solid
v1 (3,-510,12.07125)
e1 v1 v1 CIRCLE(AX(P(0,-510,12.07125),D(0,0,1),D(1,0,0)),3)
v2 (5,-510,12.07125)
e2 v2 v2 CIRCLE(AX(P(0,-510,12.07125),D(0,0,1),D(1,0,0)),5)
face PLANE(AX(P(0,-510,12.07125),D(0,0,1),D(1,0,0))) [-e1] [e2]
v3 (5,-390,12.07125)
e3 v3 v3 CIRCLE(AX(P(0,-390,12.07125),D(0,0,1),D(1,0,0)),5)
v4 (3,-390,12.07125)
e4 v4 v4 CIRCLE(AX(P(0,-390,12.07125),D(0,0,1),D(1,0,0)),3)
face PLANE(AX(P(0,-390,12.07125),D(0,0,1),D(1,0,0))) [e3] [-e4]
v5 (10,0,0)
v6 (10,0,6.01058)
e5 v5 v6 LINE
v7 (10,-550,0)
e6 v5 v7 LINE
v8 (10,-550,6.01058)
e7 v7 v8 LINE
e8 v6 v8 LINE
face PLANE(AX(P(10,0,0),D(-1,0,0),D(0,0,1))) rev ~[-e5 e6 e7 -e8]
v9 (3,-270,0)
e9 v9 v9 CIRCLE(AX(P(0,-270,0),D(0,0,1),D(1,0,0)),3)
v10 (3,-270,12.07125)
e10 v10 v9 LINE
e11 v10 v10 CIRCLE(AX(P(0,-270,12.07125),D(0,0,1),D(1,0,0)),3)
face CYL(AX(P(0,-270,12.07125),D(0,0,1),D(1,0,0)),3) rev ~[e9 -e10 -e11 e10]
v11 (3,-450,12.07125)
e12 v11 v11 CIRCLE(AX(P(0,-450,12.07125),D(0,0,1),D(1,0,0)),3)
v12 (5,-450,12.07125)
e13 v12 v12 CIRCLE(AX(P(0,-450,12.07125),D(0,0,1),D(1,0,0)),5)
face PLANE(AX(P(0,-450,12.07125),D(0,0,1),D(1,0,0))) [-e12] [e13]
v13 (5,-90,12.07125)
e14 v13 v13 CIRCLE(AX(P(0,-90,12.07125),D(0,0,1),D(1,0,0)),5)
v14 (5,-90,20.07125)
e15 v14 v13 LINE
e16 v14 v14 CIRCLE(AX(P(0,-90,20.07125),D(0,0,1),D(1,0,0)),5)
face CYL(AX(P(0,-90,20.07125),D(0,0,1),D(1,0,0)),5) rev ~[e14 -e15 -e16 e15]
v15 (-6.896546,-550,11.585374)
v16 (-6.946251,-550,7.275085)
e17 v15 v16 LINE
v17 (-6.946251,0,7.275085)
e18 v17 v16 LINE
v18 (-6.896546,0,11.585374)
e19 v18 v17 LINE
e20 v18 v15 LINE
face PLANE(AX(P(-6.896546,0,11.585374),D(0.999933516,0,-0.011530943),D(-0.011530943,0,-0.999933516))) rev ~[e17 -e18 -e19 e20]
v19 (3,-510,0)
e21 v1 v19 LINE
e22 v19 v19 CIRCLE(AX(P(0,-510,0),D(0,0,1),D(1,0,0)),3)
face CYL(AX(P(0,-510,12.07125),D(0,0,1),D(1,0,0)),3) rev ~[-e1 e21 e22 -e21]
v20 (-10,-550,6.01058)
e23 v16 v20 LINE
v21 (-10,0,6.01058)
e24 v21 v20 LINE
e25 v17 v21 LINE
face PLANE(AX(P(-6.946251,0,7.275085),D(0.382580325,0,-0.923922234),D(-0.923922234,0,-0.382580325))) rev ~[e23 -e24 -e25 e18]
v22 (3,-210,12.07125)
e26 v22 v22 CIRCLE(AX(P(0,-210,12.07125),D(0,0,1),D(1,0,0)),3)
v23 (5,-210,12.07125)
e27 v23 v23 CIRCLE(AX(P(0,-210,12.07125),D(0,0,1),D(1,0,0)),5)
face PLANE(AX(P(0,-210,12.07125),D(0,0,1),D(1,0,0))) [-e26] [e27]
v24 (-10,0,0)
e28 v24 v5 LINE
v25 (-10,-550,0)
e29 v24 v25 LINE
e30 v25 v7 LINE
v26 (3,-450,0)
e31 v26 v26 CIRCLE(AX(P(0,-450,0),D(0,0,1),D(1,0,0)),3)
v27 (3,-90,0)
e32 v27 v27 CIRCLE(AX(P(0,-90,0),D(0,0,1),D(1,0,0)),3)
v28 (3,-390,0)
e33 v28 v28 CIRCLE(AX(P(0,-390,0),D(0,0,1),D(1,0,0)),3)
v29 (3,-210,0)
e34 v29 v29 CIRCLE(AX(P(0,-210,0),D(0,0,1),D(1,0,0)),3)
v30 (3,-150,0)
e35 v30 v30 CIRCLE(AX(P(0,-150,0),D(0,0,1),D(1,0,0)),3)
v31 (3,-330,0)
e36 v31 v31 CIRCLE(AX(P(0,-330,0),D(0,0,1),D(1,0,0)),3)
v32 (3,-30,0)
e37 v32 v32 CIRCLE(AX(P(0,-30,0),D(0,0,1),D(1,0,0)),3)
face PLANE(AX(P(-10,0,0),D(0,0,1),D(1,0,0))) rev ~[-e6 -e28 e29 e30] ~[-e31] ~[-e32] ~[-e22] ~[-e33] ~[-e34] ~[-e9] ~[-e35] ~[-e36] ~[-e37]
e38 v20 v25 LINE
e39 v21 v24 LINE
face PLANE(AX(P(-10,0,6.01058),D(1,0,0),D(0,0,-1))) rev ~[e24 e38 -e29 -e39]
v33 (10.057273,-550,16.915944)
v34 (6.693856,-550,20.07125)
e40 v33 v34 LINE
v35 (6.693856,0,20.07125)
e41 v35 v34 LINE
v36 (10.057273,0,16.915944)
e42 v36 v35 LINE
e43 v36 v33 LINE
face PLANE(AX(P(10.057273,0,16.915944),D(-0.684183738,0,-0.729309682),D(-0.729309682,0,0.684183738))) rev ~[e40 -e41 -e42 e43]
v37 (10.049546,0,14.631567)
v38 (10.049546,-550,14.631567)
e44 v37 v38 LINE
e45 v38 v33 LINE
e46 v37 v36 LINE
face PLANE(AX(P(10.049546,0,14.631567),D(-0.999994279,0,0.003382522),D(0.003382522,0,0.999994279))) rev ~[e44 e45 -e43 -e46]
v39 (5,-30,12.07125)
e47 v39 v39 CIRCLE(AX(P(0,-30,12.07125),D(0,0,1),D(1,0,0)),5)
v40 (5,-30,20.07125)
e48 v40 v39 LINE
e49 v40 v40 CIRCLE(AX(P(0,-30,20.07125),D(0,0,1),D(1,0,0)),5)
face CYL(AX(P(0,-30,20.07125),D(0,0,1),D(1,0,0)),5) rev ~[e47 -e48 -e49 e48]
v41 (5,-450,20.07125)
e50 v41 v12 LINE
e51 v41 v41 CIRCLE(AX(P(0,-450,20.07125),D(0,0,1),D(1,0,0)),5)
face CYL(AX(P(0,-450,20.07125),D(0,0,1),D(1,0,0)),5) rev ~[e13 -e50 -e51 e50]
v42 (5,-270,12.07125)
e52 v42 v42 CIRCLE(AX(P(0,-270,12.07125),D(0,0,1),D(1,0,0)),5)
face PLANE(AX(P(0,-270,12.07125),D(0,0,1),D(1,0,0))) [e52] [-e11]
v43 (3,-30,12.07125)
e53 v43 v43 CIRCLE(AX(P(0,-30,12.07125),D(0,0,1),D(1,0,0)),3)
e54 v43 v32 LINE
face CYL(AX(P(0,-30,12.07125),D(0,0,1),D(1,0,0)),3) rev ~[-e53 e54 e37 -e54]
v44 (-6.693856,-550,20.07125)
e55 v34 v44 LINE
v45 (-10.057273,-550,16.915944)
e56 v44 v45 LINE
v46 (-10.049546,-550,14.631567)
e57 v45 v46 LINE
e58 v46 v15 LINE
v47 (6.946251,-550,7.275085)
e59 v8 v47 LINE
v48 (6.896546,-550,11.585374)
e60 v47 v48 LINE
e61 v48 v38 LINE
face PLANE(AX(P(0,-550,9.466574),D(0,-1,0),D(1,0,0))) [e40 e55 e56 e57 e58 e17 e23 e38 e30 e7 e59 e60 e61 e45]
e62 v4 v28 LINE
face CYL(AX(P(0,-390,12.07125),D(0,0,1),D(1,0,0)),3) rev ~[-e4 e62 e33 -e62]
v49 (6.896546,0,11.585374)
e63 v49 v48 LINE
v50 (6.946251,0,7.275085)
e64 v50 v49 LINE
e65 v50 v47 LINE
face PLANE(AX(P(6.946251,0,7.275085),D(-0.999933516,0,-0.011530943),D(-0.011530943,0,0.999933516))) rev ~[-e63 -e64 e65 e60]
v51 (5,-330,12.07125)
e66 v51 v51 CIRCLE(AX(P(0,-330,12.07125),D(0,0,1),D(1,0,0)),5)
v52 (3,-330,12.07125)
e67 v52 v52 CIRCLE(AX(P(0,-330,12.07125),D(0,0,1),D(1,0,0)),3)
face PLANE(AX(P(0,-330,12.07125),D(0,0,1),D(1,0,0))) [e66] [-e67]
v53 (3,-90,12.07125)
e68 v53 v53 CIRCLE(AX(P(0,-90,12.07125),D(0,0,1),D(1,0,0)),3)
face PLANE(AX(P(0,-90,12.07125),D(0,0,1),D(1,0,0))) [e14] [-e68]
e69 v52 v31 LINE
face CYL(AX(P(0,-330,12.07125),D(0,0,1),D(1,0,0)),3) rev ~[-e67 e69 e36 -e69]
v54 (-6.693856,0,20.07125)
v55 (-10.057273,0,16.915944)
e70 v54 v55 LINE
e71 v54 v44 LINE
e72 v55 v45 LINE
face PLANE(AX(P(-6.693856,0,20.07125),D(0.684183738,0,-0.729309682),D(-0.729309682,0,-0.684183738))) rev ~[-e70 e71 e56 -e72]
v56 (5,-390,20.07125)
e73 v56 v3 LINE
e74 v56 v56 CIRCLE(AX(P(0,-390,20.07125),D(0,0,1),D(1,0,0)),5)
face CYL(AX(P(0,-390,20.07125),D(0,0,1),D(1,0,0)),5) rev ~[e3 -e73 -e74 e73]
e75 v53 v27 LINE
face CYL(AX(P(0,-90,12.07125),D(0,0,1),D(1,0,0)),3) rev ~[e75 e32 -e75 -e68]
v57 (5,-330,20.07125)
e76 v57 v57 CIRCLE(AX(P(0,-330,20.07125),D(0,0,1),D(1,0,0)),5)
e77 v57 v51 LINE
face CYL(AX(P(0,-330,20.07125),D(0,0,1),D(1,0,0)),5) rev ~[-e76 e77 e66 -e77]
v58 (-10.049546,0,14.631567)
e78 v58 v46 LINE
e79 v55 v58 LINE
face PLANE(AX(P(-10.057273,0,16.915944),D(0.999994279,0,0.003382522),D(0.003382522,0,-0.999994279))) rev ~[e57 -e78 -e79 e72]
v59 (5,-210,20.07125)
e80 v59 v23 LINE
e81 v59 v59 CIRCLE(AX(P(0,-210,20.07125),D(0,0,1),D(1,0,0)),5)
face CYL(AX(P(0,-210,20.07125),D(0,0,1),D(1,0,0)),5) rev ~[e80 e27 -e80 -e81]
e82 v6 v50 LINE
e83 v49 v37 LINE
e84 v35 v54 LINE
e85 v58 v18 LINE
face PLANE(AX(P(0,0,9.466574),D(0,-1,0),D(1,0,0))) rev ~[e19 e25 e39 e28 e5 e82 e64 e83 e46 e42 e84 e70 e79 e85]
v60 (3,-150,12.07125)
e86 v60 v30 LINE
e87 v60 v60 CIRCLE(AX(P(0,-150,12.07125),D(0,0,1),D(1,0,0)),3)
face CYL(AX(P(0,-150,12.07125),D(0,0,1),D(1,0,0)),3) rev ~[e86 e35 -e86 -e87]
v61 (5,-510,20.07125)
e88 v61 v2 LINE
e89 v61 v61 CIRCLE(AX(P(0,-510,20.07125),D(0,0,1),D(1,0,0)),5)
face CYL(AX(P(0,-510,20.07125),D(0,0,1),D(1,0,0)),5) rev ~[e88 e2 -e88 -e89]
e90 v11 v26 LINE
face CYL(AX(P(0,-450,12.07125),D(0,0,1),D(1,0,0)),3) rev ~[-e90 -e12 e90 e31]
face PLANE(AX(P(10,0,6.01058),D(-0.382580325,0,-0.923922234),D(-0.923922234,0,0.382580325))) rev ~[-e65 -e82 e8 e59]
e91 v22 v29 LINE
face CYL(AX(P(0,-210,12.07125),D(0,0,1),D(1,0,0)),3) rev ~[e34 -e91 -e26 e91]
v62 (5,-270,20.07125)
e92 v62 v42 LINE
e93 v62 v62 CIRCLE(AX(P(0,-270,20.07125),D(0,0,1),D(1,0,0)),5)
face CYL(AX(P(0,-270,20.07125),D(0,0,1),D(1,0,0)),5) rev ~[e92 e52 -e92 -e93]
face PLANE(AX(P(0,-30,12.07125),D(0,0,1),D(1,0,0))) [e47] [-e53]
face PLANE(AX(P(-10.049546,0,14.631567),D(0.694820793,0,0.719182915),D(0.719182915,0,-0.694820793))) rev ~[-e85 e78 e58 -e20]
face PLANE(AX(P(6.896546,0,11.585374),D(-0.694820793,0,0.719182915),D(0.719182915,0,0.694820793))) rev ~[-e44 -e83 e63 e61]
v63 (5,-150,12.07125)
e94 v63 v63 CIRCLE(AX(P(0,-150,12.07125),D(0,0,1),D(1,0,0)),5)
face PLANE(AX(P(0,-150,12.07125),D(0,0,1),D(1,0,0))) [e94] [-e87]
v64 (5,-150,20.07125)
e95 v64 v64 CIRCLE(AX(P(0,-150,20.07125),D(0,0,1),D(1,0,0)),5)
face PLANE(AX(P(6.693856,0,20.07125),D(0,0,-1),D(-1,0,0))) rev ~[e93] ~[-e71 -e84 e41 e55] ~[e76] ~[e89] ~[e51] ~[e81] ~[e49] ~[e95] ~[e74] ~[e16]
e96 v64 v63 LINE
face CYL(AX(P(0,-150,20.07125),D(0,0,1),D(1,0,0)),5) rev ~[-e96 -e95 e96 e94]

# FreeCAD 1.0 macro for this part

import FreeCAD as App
import Part
import Sketcher

V = App.Vector


def add_polygon(sketch, points):
    """Adds a closed chain of lines whose ends are joined by coincident constraints."""
    first, n = sketch.GeometryCount, len(points)
    for a, b in zip(points, points[1:] + points[:1]):
        sketch.addGeometry(Part.LineSegment(App.Vector(*a, 0), App.Vector(*b, 0)), False)
    for i in range(n):
        sketch.addConstraint(Sketcher.Constraint("Coincident", first + i, 2, first + (i + 1) % n, 1))

doc = App.newDocument("Part")
params = doc.addObject("Spreadsheet::Sheet", "Params")
for row, (alias, value) in enumerate([
    ("sketch1_width", "20 mm"),
    ("pad1_length", "550 mm"),
    ("sketch2_diameter", "10 mm"),
    ("pocket1_length", "8 mm"),
    ("sketch3_diameter", "6 mm"),
    ("pocket2_length", "25 mm"),
], start=1):
    params.set(f"A{row}", alias)
    params.set(f"B{row}", "=" + value)
    params.setAlias(f"B{row}", alias)

body = doc.addObject("PartDesign::Body", "Body")

# Sketch on XZ plane
sketch1 = body.newObject("Sketcher::SketchObject", "Sketch")
sketch1.AttachmentSupport = (doc.getObject("XZ_Plane"), [""])
sketch1.MapMode = "FlatFace"
add_polygon(sketch1, [(-10.1, 16.9), (-10, 14.6), (-6.9, 11.6), (-6.9, 7.3), (-10, 6), (-10, 0), (10, 0), (10, 6), (6.9, 7.3), (6.9, 11.6), (10, 14.6), (10.1, 16.9), (6.7, 20.1), (-6.7, 20.1)])  # lines 0-13
sketch1.addConstraint(Sketcher.Constraint("Vertical", 4))
sketch1.addConstraint(Sketcher.Constraint("Horizontal", 5))
sketch1.addConstraint(Sketcher.Constraint("Vertical", 6))
sketch1.addConstraint(Sketcher.Constraint("Horizontal", 12))
sketch1.addConstraint(Sketcher.Constraint("Symmetric", 4, 2, 5, 2, -1, 1))
sketch1.addConstraint(Sketcher.Constraint("Symmetric", 2, 2, 7, 2, -2))
sketch1.addConstraint(Sketcher.Constraint("Symmetric", 1, 2, 8, 2, -2))
sketch1.addConstraint(Sketcher.Constraint("Symmetric", 0, 2, 9, 2, -2))
sketch1.addConstraint(Sketcher.Constraint("Symmetric", 10, 2, 13, 2, -2))
sketch1.addConstraint(Sketcher.Constraint("Horizontal", 3, 2, 6, 2))
sketch1.addConstraint(Sketcher.Constraint("Equal", 11, 13))
sketch1.addConstraint(Sketcher.Constraint("DistanceX", 5, 1, 5, 2, 20.0))
sketch1.addConstraint(Sketcher.Constraint("DistanceX", 0, 2, 1, 2, 3.153))
sketch1.addConstraint(Sketcher.Constraint("Distance", 3, 3.305201))
sketch1.addConstraint(Sketcher.Constraint("DistanceY", 4, 2, 4, 1, 6.01058))
sketch1.addConstraint(Sketcher.Constraint("Distance", 0, 2.28439))
sketch1.addConstraint(Sketcher.Constraint("Distance", 1, 4.384142))
sketch1.addConstraint(Sketcher.Constraint("Distance", 11, 4.611782))
sketch1.addConstraint(Sketcher.Constraint("DistanceX", 12, 2, 12, 1, 13.387712))
sketch1.addConstraint(Sketcher.Constraint("DistanceX", 2, 2, -1, 1, 6.946251))
sketch1.addConstraint(Sketcher.Constraint("DistanceY", -1, 1, 11, 2, 20.07125))
sketch1.addConstraint(Sketcher.Constraint("DistanceY", 2, 2, 1, 2, 4.310289))
sketch1.addConstraint(Sketcher.Constraint("DistanceX", 1, 2, 9, 2, 16.946092))
sketch1.setExpression("Constraints[25]", "Params.sketch1_width")
pad1 = body.newObject("PartDesign::Pad", "Pad")
pad1.Profile = sketch1
pad1.setExpression("Length", "Params.pad1_length")

# Sketch on XY plane
sketch2 = body.newObject("Sketcher::SketchObject", "Sketch001")
sketch2.AttachmentSupport = (doc.getObject("XY_Plane"), [""])
sketch2.MapMode = "FlatFace"
sketch2.AttachmentOffset = App.Placement(V(0, 0, 20.07125), App.Rotation())
sketch2.addGeometry(Part.Circle(V(0, -510, 0), V(0, 0, 1), 5), False)
sketch2.addGeometry(Part.Circle(V(0, -450, 0), V(0, 0, 1), 5), False)
sketch2.addGeometry(Part.Circle(V(0, -390, 0), V(0, 0, 1), 5), False)
sketch2.addGeometry(Part.Circle(V(0, -330, 0), V(0, 0, 1), 5), False)
sketch2.addGeometry(Part.Circle(V(0, -270, 0), V(0, 0, 1), 5), False)
sketch2.addGeometry(Part.Circle(V(0, -210, 0), V(0, 0, 1), 5), False)
sketch2.addGeometry(Part.Circle(V(0, -150, 0), V(0, 0, 1), 5), False)
sketch2.addGeometry(Part.Circle(V(0, -90, 0), V(0, 0, 1), 5), False)
sketch2.addGeometry(Part.Circle(V(0, -30, 0), V(0, 0, 1), 5), False)
sketch2.addConstraint(Sketcher.Constraint("Equal", 0, 1))
sketch2.addConstraint(Sketcher.Constraint("Equal", 1, 2))
sketch2.addConstraint(Sketcher.Constraint("Equal", 2, 3))
sketch2.addConstraint(Sketcher.Constraint("Equal", 3, 4))
sketch2.addConstraint(Sketcher.Constraint("Equal", 4, 5))
sketch2.addConstraint(Sketcher.Constraint("Equal", 5, 6))
sketch2.addConstraint(Sketcher.Constraint("Equal", 6, 7))
sketch2.addConstraint(Sketcher.Constraint("Equal", 7, 8))
sketch2.addConstraint(Sketcher.Constraint("PointOnObject", 0, 3, -2))
sketch2.addConstraint(Sketcher.Constraint("PointOnObject", 1, 3, -2))
sketch2.addConstraint(Sketcher.Constraint("PointOnObject", 2, 3, -2))
sketch2.addConstraint(Sketcher.Constraint("PointOnObject", 3, 3, -2))
sketch2.addConstraint(Sketcher.Constraint("PointOnObject", 4, 3, -2))
sketch2.addConstraint(Sketcher.Constraint("PointOnObject", 5, 3, -2))
sketch2.addConstraint(Sketcher.Constraint("PointOnObject", 6, 3, -2))
sketch2.addConstraint(Sketcher.Constraint("PointOnObject", 7, 3, -2))
sketch2.addConstraint(Sketcher.Constraint("PointOnObject", 8, 3, -2))
sketch2.addConstraint(Sketcher.Constraint("Diameter", 0, 10.0))
sketch2.addConstraint(Sketcher.Constraint("DistanceY", 0, 3, -1, 1, 510.0))
sketch2.addConstraint(Sketcher.Constraint("DistanceY", 1, 3, -1, 1, 450.0))
sketch2.addConstraint(Sketcher.Constraint("DistanceY", 2, 3, -1, 1, 390.0))
sketch2.addConstraint(Sketcher.Constraint("DistanceY", 3, 3, -1, 1, 330.0))
sketch2.addConstraint(Sketcher.Constraint("DistanceY", 4, 3, -1, 1, 270.0))
sketch2.addConstraint(Sketcher.Constraint("DistanceY", 5, 3, -1, 1, 210.0))
sketch2.addConstraint(Sketcher.Constraint("DistanceY", 6, 3, -1, 1, 150.0))
sketch2.addConstraint(Sketcher.Constraint("DistanceY", 7, 3, -1, 1, 90.0))
sketch2.addConstraint(Sketcher.Constraint("DistanceY", 8, 3, -1, 1, 30.0))
sketch2.setExpression("Constraints[17]", "Params.sketch2_diameter")
pocket1 = body.newObject("PartDesign::Pocket", "Pocket")
pocket1.Profile = sketch2
pocket1.setExpression("Length", "Params.pocket1_length")

# Sketch on XY plane
sketch3 = body.newObject("Sketcher::SketchObject", "Sketch002")
sketch3.AttachmentSupport = (doc.getObject("XY_Plane"), [""])
sketch3.MapMode = "FlatFace"
sketch3.AttachmentOffset = App.Placement(V(0, 0, 12.07125), App.Rotation())
sketch3.addGeometry(Part.Circle(V(0, -510, 0), V(0, 0, 1), 3), False)
sketch3.addGeometry(Part.Circle(V(0, -450, 0), V(0, 0, 1), 3), False)
sketch3.addGeometry(Part.Circle(V(0, -390, 0), V(0, 0, 1), 3), False)
sketch3.addGeometry(Part.Circle(V(0, -330, 0), V(0, 0, 1), 3), False)
sketch3.addGeometry(Part.Circle(V(0, -270, 0), V(0, 0, 1), 3), False)
sketch3.addGeometry(Part.Circle(V(0, -210, 0), V(0, 0, 1), 3), False)
sketch3.addGeometry(Part.Circle(V(0, -150, 0), V(0, 0, 1), 3), False)
sketch3.addGeometry(Part.Circle(V(0, -30, 0), V(0, 0, 1), 3), False)
sketch3.addGeometry(Part.Circle(V(0, -90, 0), V(0, 0, 1), 3), False)
sketch3.addConstraint(Sketcher.Constraint("Equal", 0, 1))
sketch3.addConstraint(Sketcher.Constraint("Equal", 1, 2))
sketch3.addConstraint(Sketcher.Constraint("Equal", 2, 3))
sketch3.addConstraint(Sketcher.Constraint("Equal", 3, 4))
sketch3.addConstraint(Sketcher.Constraint("Equal", 4, 5))
sketch3.addConstraint(Sketcher.Constraint("Equal", 5, 6))
sketch3.addConstraint(Sketcher.Constraint("Equal", 6, 7))
sketch3.addConstraint(Sketcher.Constraint("Equal", 7, 8))
sketch3.addConstraint(Sketcher.Constraint("PointOnObject", 0, 3, -2))
sketch3.addConstraint(Sketcher.Constraint("PointOnObject", 1, 3, -2))
sketch3.addConstraint(Sketcher.Constraint("PointOnObject", 2, 3, -2))
sketch3.addConstraint(Sketcher.Constraint("PointOnObject", 3, 3, -2))
sketch3.addConstraint(Sketcher.Constraint("PointOnObject", 4, 3, -2))
sketch3.addConstraint(Sketcher.Constraint("PointOnObject", 5, 3, -2))
sketch3.addConstraint(Sketcher.Constraint("PointOnObject", 6, 3, -2))
sketch3.addConstraint(Sketcher.Constraint("PointOnObject", 7, 3, -2))
sketch3.addConstraint(Sketcher.Constraint("PointOnObject", 8, 3, -2))
sketch3.addConstraint(Sketcher.Constraint("Diameter", 0, 6.0))
sketch3.addConstraint(Sketcher.Constraint("DistanceY", 0, 3, -1, 1, 510.0))
sketch3.addConstraint(Sketcher.Constraint("DistanceY", 1, 3, -1, 1, 450.0))
sketch3.addConstraint(Sketcher.Constraint("DistanceY", 2, 3, -1, 1, 390.0))
sketch3.addConstraint(Sketcher.Constraint("DistanceY", 3, 3, -1, 1, 330.0))
sketch3.addConstraint(Sketcher.Constraint("DistanceY", 4, 3, -1, 1, 270.0))
sketch3.addConstraint(Sketcher.Constraint("DistanceY", 5, 3, -1, 1, 210.0))
sketch3.addConstraint(Sketcher.Constraint("DistanceY", 6, 3, -1, 1, 150.0))
sketch3.addConstraint(Sketcher.Constraint("DistanceY", 7, 3, -1, 1, 30.0))
sketch3.addConstraint(Sketcher.Constraint("DistanceY", 8, 3, -1, 1, 90.0))
sketch3.setExpression("Constraints[17]", "Params.sketch3_diameter")
pocket2 = body.newObject("PartDesign::Pocket", "Pocket001")
pocket2.Profile = sketch3
pocket2.setExpression("Length", "Params.pocket2_length")

doc.recompute()
